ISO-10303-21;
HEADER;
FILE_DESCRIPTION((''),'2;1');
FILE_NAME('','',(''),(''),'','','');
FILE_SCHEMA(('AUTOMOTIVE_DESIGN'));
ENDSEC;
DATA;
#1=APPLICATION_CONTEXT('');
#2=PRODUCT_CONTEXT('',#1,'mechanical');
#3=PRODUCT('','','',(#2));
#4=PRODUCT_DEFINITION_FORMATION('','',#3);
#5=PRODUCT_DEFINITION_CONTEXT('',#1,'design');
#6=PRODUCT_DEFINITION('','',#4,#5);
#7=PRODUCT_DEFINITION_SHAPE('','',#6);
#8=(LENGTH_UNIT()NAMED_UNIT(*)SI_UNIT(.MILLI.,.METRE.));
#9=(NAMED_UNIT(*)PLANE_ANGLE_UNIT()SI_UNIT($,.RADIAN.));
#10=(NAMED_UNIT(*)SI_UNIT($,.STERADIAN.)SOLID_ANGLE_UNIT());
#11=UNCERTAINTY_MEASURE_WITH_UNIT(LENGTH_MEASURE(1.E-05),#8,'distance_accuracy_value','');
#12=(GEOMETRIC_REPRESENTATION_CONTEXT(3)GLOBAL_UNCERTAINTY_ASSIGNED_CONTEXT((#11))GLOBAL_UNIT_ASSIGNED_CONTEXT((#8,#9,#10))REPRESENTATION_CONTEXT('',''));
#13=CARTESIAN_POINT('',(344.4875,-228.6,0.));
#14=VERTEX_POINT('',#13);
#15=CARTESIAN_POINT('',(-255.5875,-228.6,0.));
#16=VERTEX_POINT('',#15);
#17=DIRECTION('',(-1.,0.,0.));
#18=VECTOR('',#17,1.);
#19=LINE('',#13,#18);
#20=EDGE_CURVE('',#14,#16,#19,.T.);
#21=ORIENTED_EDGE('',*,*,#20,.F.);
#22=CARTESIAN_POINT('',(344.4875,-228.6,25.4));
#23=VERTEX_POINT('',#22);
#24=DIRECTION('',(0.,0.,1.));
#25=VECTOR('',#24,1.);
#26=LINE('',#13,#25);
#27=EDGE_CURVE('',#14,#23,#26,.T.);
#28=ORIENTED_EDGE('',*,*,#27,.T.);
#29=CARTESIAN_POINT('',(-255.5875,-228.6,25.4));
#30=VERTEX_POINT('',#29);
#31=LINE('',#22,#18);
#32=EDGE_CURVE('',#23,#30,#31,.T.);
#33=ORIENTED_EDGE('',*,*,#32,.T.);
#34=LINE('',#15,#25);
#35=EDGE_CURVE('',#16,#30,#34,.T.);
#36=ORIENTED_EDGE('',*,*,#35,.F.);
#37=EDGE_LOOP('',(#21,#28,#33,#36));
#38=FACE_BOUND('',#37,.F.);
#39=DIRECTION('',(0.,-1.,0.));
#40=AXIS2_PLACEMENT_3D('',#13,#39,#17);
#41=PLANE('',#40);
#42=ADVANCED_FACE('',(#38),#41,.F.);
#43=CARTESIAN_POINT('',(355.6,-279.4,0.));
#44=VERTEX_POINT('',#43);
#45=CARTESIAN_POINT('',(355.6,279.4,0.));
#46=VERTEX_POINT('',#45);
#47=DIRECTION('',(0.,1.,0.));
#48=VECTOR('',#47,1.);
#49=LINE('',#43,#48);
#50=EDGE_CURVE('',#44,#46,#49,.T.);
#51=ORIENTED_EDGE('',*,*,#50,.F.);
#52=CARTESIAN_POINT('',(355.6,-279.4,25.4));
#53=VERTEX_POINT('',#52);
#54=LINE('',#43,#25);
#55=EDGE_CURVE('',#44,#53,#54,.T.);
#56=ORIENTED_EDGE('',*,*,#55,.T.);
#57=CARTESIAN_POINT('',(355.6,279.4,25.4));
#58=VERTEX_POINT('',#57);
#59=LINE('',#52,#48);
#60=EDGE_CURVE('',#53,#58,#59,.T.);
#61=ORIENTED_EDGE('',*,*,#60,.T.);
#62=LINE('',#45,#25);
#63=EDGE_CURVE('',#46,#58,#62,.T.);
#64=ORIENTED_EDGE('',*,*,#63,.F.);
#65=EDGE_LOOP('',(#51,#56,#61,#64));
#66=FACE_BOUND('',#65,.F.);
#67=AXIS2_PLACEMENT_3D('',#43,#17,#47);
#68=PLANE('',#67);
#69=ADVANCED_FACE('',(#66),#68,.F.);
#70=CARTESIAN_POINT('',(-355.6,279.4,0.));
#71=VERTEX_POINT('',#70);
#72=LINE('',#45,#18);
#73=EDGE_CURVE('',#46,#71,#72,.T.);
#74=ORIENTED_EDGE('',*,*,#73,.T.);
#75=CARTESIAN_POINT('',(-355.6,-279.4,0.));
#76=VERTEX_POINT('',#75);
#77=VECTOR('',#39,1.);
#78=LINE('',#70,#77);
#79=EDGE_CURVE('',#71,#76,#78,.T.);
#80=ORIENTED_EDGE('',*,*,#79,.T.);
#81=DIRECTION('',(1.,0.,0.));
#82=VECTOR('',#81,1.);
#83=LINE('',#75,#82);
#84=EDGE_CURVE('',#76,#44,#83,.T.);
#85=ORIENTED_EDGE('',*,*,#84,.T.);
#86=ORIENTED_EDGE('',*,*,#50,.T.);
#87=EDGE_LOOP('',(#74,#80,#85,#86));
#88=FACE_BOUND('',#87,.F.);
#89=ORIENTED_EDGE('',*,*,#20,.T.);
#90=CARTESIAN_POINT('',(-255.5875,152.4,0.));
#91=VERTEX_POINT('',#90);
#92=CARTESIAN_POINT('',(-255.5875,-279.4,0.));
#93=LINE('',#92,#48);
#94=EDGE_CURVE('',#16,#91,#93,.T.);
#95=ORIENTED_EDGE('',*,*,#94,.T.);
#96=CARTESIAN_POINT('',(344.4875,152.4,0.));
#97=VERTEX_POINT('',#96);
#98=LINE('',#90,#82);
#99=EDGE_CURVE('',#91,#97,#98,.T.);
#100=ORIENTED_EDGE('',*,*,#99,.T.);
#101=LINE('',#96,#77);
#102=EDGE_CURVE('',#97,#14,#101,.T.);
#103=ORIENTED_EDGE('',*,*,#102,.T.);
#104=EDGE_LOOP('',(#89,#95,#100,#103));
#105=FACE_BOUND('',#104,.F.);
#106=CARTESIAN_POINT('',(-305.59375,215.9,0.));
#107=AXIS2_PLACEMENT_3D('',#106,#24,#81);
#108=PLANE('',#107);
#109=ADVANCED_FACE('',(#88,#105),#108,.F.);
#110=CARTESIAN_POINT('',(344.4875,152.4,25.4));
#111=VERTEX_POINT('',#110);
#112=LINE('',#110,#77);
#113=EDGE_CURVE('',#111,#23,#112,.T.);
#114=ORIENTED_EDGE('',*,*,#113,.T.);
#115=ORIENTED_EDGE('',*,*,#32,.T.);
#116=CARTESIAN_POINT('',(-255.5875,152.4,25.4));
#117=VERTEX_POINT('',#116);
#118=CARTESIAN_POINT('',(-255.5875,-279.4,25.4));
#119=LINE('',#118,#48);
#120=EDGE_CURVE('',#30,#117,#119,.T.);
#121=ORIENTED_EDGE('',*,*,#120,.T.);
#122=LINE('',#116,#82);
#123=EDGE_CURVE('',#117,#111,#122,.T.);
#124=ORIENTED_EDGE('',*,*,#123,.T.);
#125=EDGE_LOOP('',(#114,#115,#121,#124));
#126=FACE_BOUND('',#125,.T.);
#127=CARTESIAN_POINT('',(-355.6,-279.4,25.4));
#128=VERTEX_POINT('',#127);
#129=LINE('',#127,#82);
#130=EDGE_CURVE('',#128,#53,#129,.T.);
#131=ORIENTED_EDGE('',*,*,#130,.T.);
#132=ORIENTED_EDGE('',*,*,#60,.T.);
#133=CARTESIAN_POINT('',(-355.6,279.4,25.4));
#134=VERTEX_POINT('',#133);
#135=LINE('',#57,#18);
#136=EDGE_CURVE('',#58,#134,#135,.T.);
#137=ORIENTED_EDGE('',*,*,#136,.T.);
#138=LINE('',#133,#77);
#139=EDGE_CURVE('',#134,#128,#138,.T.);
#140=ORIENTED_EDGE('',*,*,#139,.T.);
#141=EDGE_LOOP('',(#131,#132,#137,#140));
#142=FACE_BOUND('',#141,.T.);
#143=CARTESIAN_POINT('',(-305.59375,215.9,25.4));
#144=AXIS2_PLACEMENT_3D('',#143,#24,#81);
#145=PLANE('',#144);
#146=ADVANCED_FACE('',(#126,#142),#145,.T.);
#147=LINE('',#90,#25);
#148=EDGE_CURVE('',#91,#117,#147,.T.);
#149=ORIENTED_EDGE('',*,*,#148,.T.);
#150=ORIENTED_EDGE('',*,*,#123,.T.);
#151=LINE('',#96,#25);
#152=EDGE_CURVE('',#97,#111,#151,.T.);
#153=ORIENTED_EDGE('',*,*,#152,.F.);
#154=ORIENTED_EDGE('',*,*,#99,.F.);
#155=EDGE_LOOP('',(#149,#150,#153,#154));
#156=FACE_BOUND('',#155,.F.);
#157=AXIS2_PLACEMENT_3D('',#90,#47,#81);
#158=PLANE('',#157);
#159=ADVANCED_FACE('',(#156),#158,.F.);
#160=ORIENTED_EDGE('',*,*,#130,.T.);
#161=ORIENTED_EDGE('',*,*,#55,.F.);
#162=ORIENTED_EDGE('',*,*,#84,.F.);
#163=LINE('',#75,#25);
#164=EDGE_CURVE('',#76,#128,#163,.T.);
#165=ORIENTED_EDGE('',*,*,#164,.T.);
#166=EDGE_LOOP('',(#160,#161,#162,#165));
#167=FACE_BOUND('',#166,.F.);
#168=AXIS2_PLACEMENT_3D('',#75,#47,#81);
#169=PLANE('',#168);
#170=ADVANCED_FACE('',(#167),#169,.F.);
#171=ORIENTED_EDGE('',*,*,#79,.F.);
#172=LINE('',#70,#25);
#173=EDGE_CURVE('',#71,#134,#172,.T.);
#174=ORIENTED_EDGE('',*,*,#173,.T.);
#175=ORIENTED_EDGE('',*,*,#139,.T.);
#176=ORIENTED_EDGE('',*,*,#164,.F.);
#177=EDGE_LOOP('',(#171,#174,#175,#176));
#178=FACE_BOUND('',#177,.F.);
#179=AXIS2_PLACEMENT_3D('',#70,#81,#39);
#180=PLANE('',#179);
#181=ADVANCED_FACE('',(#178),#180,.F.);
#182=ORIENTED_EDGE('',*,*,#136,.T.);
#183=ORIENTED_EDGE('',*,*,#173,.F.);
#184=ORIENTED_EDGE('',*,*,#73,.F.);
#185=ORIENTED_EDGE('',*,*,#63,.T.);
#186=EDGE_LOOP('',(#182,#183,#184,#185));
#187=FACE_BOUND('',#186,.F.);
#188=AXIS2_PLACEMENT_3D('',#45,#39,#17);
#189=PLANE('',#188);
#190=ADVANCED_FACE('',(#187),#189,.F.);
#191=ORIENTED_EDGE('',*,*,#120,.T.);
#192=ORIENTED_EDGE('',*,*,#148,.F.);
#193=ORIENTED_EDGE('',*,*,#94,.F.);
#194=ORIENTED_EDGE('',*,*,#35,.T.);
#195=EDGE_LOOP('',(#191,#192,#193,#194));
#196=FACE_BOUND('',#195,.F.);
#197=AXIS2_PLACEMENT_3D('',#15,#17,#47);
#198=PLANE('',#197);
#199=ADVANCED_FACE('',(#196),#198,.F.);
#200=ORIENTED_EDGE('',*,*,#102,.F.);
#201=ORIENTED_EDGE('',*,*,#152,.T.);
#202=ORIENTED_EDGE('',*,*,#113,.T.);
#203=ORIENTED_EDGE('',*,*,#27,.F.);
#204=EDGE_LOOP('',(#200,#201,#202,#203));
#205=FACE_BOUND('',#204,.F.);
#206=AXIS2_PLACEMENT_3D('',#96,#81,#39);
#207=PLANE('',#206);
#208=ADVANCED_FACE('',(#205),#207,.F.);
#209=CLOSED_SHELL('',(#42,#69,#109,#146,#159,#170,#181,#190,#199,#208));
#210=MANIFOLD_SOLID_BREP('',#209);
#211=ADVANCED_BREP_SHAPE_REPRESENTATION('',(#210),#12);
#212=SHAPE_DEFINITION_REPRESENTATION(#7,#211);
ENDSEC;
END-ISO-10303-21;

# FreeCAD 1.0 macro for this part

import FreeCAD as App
import Part
import Sketcher
Q = App.Units.Quantity


def add_polygon(sketch, points):
    """Adds a closed chain of lines whose ends are joined by coincident constraints."""
    first, n = sketch.GeometryCount, len(points)
    for a, b in zip(points, points[1:] + points[:1]):
        sketch.addGeometry(Part.LineSegment(App.Vector(*a, 0), App.Vector(*b, 0)), False)
    for i in range(n):
        sketch.addConstraint(Sketcher.Constraint("Coincident", first + i, 2, first + (i + 1) % n, 1))

doc = App.newDocument("Part")
params = doc.addObject("Spreadsheet::Sheet", "Params")
for row, (alias, value) in enumerate([
    ("sketch1_width", "28 in"),
    ("sketch1_height", "22 in"),
    ("sketch1_height2", "15 in"),
    ("sketch1_width2", "23.625 in"),
    ("pad1_length", "1 in"),
], start=1):
    params.set(f"A{row}", alias)
    params.set(f"B{row}", "=" + value)
    params.setAlias(f"B{row}", alias)

body = doc.addObject("PartDesign::Body", "Body")

sketch1 = body.newObject("Sketcher::SketchObject", "Sketch")
sketch1.AttachmentSupport = (doc.getObject("XY_Plane"), [""])
sketch1.MapMode = "FlatFace"
add_polygon(sketch1, [(-356, -279), (356, -279), (356, 279), (-356, 279)])
add_polygon(sketch1, [(344, 152), (344, -229), (-256, -229), (-256, 152)])
sketch1.addConstraint(Sketcher.Constraint("Horizontal", 0))
sketch1.addConstraint(Sketcher.Constraint("Vertical", 1))
sketch1.addConstraint(Sketcher.Constraint("Horizontal", 2))
sketch1.addConstraint(Sketcher.Constraint("Vertical", 3))
sketch1.addConstraint(Sketcher.Constraint("Vertical", 4))
sketch1.addConstraint(Sketcher.Constraint("Horizontal", 5))
sketch1.addConstraint(Sketcher.Constraint("Vertical", 6))
sketch1.addConstraint(Sketcher.Constraint("Horizontal", 7))
sketch1.addConstraint(Sketcher.Constraint("Symmetric", 0, 2, 2, 2, -1, 1))
sketch1.addConstraint(Sketcher.Constraint("DistanceX", 0, 1, 0, 2, Q("28 in")))
sketch1.addConstraint(Sketcher.Constraint("DistanceY", 1, 1, 1, 2, Q("22 in")))
sketch1.addConstraint(Sketcher.Constraint("DistanceY", 4, 2, 4, 1, Q("15 in")))
sketch1.addConstraint(Sketcher.Constraint("DistanceY", 4, 2, -1, 1, Q("9 in")))
sketch1.addConstraint(Sketcher.Constraint("DistanceX", 5, 2, 5, 1, Q("23.625 in")))
sketch1.addConstraint(Sketcher.Constraint("DistanceX", -1, 1, 4, 2, Q("13.5625 in")))
sketch1.setExpression("Constraints[17]", "Params.sketch1_width")
sketch1.setExpression("Constraints[18]", "Params.sketch1_height")
sketch1.setExpression("Constraints[19]", "Params.sketch1_height2")
sketch1.setExpression("Constraints[21]", "Params.sketch1_width2")
pad1 = body.newObject("PartDesign::Pad", "Pad")
pad1.Profile = sketch1
pad1.setExpression("Length", "Params.pad1_length")

doc.recompute()
